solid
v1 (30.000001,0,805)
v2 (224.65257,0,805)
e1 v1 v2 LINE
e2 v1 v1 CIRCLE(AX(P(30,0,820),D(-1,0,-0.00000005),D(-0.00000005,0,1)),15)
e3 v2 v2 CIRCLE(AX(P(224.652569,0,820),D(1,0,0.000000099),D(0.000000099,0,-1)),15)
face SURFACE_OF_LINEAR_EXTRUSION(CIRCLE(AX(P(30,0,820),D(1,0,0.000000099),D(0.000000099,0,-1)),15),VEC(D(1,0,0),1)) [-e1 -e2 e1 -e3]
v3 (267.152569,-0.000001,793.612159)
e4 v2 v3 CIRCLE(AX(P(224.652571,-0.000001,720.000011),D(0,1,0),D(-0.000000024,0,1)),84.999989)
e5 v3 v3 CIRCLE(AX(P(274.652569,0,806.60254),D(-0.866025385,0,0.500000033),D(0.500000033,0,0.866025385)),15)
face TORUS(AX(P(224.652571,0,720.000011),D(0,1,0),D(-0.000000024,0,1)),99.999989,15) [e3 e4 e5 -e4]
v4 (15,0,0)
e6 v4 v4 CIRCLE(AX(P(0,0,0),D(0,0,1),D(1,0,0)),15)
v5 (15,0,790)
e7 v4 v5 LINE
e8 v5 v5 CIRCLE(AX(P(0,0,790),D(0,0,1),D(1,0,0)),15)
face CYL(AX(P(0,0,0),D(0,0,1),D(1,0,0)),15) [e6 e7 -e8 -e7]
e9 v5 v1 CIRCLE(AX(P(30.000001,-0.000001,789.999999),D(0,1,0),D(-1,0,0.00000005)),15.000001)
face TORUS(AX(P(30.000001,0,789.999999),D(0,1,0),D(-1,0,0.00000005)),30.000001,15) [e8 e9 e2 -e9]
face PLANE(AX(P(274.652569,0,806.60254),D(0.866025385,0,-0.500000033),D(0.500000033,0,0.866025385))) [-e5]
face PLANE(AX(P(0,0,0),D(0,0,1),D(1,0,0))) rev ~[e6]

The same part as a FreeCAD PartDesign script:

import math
import FreeCAD as App
import Part
import Sketcher

V = App.Vector
Q = App.Units.Quantity

doc = App.newDocument("Part")
body = doc.addObject("PartDesign::Body", "Body")

# Sketch on XY plane
sketch1 = body.newObject("Sketcher::SketchObject", "Sketch")
sketch1.AttachmentSupport = (doc.getObject("XY_Plane"), [""])
sketch1.MapMode = "FlatFace"
sketch1.addGeometry(Part.Circle(V(0, 0, 0), V(0, 0, 1), 15), False)
sketch1.addConstraint(Sketcher.Constraint("Coincident", 0, 3, -1, 1))
sketch1.addConstraint(Sketcher.Constraint("Diameter", 0, Q("30 mm")))

# Sketch on XZ plane
sketch2 = body.newObject("Sketcher::SketchObject", "Sketch001")
sketch2.AttachmentSupport = (doc.getObject("XZ_Plane"), [""])
sketch2.MapMode = "FlatFace"
sketch2.addGeometry(Part.LineSegment(V(0, 0, 0), V(0, 790, 0)), False)
sketch2.addGeometry(Part.ArcOfCircle(Part.Circle(V(30, 790, 0), V(0, 0, 1), 30), math.radians(90), math.radians(180)), False)
sketch2.addGeometry(Part.LineSegment(V(30, 820, 0), V(225, 820, 0)), False)
sketch2.addGeometry(Part.ArcOfCircle(Part.Circle(V(225, 720, 0), V(0, 0, 1), 100), math.radians(60), math.radians(90)), False)
sketch2.addConstraint(Sketcher.Constraint("Tangent", 0, 2, 1, 2))
sketch2.addConstraint(Sketcher.Constraint("Tangent", 1, 1, 2, 1))
sketch2.addConstraint(Sketcher.Constraint("Tangent", 2, 2, 3, 2))
sketch2.addConstraint(Sketcher.Constraint("Vertical", 0))
sketch2.addConstraint(Sketcher.Constraint("Horizontal", 2))
sketch2.addConstraint(Sketcher.Constraint("Coincident", 0, 1, -1, 1))
sketch2.addConstraint(Sketcher.Constraint("Radius", 1, Q("30.000001 mm")))
sketch2.addConstraint(Sketcher.Constraint("DistanceY", 0, 1, 0, 2, Q("790 mm")))
sketch2.addConstraint(Sketcher.Constraint("DistanceX", 2, 2, 3, 1, Q("50 mm")))
sketch2.addConstraint(Sketcher.Constraint("Radius", 3, Q("99.999989 mm")))
sketch2.addConstraint(Sketcher.Constraint("DistanceX", 2, 1, 2, 2, Q("194.652569 mm")))
doc.recompute()

additivepipe = body.newObject("PartDesign::AdditivePipe", "AdditivePipe")
additivepipe.Profile = sketch1
additivepipe.Spine = (sketch2, ["Edge1", "Edge2", "Edge3", "Edge4"])

doc.recompute()
